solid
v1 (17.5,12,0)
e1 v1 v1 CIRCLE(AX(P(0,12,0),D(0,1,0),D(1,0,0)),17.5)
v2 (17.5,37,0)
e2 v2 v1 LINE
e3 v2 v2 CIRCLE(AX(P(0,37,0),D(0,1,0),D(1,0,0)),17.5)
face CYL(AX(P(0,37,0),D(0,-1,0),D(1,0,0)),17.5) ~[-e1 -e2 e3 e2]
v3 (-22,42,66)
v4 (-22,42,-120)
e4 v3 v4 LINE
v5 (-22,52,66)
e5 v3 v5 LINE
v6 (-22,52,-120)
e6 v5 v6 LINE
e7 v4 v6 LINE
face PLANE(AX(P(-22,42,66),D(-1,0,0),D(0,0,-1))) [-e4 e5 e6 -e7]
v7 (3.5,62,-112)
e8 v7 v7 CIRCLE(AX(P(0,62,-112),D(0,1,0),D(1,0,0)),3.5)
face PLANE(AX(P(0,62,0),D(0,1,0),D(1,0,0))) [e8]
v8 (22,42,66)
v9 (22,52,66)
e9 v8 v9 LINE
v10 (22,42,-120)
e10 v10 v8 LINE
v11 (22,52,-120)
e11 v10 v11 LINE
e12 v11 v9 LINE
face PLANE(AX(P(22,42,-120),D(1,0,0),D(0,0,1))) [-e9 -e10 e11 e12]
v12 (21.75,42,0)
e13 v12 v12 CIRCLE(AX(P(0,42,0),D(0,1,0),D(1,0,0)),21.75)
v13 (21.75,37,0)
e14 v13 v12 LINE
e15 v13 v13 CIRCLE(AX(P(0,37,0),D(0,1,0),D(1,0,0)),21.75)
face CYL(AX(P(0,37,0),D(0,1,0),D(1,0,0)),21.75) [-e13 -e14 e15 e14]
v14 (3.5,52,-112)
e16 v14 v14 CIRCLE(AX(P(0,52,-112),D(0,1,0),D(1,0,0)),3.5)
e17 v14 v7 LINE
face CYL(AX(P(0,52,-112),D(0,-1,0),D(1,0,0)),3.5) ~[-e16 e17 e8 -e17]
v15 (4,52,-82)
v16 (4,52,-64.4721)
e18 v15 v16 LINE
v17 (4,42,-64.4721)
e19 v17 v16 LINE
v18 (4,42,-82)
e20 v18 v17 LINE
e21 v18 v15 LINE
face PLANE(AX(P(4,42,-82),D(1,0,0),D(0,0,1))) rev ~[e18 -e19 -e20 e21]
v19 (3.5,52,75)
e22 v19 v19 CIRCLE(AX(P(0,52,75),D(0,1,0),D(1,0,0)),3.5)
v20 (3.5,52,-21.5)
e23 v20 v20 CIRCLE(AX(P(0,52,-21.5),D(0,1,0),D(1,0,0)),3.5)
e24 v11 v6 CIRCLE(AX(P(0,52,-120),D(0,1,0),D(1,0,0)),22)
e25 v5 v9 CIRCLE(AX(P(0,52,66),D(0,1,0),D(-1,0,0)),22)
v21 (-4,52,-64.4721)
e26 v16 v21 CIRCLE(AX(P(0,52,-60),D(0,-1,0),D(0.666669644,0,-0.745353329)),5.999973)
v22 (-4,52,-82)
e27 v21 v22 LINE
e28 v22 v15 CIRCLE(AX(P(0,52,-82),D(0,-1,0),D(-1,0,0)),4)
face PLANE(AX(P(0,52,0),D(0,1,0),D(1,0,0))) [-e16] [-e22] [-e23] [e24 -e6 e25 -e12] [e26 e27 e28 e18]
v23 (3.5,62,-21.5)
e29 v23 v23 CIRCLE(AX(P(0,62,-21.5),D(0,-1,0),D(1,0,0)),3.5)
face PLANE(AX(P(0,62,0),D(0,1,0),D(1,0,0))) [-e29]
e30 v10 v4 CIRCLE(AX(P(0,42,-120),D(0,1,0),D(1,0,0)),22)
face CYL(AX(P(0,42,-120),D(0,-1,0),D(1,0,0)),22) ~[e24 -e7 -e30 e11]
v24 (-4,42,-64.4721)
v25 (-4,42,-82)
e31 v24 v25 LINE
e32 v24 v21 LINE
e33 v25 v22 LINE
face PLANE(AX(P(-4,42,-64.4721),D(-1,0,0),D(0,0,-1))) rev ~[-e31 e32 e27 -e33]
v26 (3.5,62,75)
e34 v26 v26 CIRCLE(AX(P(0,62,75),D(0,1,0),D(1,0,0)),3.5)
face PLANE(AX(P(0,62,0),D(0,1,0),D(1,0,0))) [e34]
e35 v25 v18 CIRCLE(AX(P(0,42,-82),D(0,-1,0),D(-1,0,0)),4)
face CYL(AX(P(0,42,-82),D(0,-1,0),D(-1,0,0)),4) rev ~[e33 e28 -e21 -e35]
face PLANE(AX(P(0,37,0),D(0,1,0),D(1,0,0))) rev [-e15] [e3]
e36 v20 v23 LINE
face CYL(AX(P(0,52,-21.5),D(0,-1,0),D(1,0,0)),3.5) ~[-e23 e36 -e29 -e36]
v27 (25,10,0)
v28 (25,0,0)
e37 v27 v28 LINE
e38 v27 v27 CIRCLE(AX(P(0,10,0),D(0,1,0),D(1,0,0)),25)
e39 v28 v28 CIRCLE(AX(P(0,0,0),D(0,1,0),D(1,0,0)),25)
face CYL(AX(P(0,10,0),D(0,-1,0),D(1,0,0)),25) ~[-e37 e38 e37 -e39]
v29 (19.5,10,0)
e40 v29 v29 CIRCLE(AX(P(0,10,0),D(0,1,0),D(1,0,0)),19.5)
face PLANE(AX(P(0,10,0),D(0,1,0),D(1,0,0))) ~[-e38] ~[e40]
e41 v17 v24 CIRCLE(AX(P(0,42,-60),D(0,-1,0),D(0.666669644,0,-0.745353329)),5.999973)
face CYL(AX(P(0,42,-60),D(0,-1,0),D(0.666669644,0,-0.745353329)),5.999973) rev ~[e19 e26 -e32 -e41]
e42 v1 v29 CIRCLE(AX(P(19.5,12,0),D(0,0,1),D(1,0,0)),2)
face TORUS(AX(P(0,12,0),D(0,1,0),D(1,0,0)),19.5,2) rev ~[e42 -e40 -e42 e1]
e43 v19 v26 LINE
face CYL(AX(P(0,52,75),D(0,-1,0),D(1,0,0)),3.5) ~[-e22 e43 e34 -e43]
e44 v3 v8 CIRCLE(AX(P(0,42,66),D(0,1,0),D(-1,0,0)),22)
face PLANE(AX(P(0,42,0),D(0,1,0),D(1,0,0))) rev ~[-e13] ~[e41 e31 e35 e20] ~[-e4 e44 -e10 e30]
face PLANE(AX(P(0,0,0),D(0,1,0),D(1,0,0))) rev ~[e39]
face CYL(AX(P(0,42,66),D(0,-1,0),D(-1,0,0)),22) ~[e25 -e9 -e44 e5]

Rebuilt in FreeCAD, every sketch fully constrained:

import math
import FreeCAD as App
import Part
import Sketcher
from FreeCAD import Vector
Q = App.Units.Quantity


def edges_at(feature, points):
    """Names of the edges that pass closest to the given points."""
    edges = feature.Shape.Edges
    near = lambda p: min(range(len(edges)), key=lambda i: edges[i].distToShape(Part.Vertex(*p))[0])
    return sorted({f"Edge{near(p) + 1}" for p in points})

doc = App.newDocument("Part")
params = doc.addObject("Spreadsheet::Sheet", "Params")
for row, (alias, value) in enumerate([
    ("sketch1_height", "10 mm"),
    ("sketch1_height2", "5 mm"),
    ("sketch1_width", "25 mm"),
    ("sketch1_width2", "7.5 mm"),
    ("sketch1_width3", "4.25 mm"),
    ("revolution_angle", "360 deg"),
    ("sketch2_radius", "22 mm"),
    ("sketch2_height", "186 mm"),
    ("pad1_length", "10 mm"),
    ("fillet_radius", "2 mm"),
    ("sketch3_diameter", "7 mm"),
    ("pad2_length", "10 mm"),
    ("sketch4_radius", "6 mm"),
    ("sketch4_radius2", "4 mm"),
    ("pocket1_length", "10 mm"),
], start=1):
    params.set(f"A{row}", alias)
    params.set(f"B{row}", "=" + value)
    params.setAlias(f"B{row}", alias)

body = doc.addObject("PartDesign::Body", "Body")

sketch1 = doc.addObject("Sketcher::SketchObject", "Sketch")
body.addObject(sketch1)
sketch1.AttachmentSupport = (doc.XY_Plane, [""])
sketch1.MapMode = "FlatFace"
sketch1.addGeometry([
    Part.LineSegment(Vector(0, 42, 0), Vector(0, 0, 0)),
    Part.LineSegment(Vector(0, 0, 0), Vector(25, 0, 0)),
    Part.LineSegment(Vector(25, 0, 0), Vector(25, 10, 0)),
    Part.LineSegment(Vector(25, 10, 0), Vector(17.5, 10, 0)),
    Part.LineSegment(Vector(17.5, 10, 0), Vector(17.5, 37, 0)),
    Part.LineSegment(Vector(17.5, 37, 0), Vector(21.8, 37, 0)),
    Part.LineSegment(Vector(21.8, 37, 0), Vector(21.8, 42, 0)),
    Part.LineSegment(Vector(21.8, 42, 0), Vector(0, 42, 0)),
], False)
sketch1.addConstraint([
    Sketcher.Constraint("Coincident", 0, 2, 1, 1),
    Sketcher.Constraint("Coincident", 1, 2, 2, 1),
    Sketcher.Constraint("Coincident", 2, 2, 3, 1),
    Sketcher.Constraint("Coincident", 3, 2, 4, 1),
    Sketcher.Constraint("Coincident", 4, 2, 5, 1),
    Sketcher.Constraint("Coincident", 5, 2, 6, 1),
    Sketcher.Constraint("Coincident", 6, 2, 7, 1),
    Sketcher.Constraint("Coincident", 7, 2, 0, 1),
    Sketcher.Constraint("Vertical", 0),
    Sketcher.Constraint("Horizontal", 1),
    Sketcher.Constraint("Vertical", 2),
    Sketcher.Constraint("Horizontal", 3),
    Sketcher.Constraint("Vertical", 4),
    Sketcher.Constraint("Horizontal", 5),
    Sketcher.Constraint("Vertical", 6),
    Sketcher.Constraint("Horizontal", 7),
    Sketcher.Constraint("Coincident", 0, 2, -1, 1),
    Sketcher.Constraint("DistanceY", 2, 1, 2, 2, Q("10 mm")),
    Sketcher.Constraint("DistanceY", 6, 1, 6, 2, Q("5 mm")),
    Sketcher.Constraint("DistanceY", -1, 1, 4, 2, Q("37 mm")),
    Sketcher.Constraint("DistanceX", 1, 1, 1, 2, Q("25 mm")),
    Sketcher.Constraint("DistanceX", 3, 2, 3, 1, Q("7.5 mm")),
    Sketcher.Constraint("DistanceX", 5, 1, 5, 2, Q("4.25 mm")),
])
sketch1.setExpression("Constraints[17]", "Params.sketch1_height")
sketch1.setExpression("Constraints[18]", "Params.sketch1_height2")
sketch1.setExpression("Constraints[20]", "Params.sketch1_width")
sketch1.setExpression("Constraints[21]", "Params.sketch1_width2")
sketch1.setExpression("Constraints[22]", "Params.sketch1_width3")
revolution = doc.addObject("PartDesign::Revolution", "Revolution")
body.addObject(revolution)
revolution.Profile = sketch1
revolution.ReferenceAxis = (sketch1, ["V_Axis"])
revolution.setExpression("Angle", "Params.revolution_angle")

sketch2 = doc.addObject("Sketcher::SketchObject", "Sketch001")
body.addObject(sketch2)
sketch2.AttachmentSupport = (doc.XZ_Plane, [""])
sketch2.MapMode = "FlatFace"
sketch2.AttachmentOffset = App.Placement(Vector(0, 0, -42), App.Rotation())
sketch2.addGeometry([
    Part.LineSegment(Vector(-22, -120, 0), Vector(-22, 66, 0)),
    Part.ArcOfCircle(Part.Circle(Vector(0, 66, 0), Vector(0, 0, 1), 22), math.radians(0), math.radians(180)),
    Part.LineSegment(Vector(22, 66, 0), Vector(22, -120, 0)),
    Part.ArcOfCircle(Part.Circle(Vector(0, -120, 0), Vector(0, 0, 1), 22), math.radians(180), math.radians(360)),
], False)
sketch2.addConstraint([
    Sketcher.Constraint("Tangent", 0, 2, 1, 2),
    Sketcher.Constraint("Tangent", 1, 1, 2, 1),
    Sketcher.Constraint("Tangent", 2, 2, 3, 2),
    Sketcher.Constraint("Tangent", 3, 1, 0, 1),
    Sketcher.Constraint("Vertical", 0),
    Sketcher.Constraint("Vertical", 2),
    Sketcher.Constraint("PointOnObject", 1, 3, -2),
    Sketcher.Constraint("Radius", 1, Q("22 mm")),
    Sketcher.Constraint("DistanceY", 0, 1, 0, 2, Q("186 mm")),
    Sketcher.Constraint("DistanceY", -1, 1, 1, 3, Q("66 mm")),
])
sketch2.setExpression("Constraints[7]", "Params.sketch2_radius")
sketch2.setExpression("Constraints[8]", "Params.sketch2_height")
pad1 = doc.addObject("PartDesign::Pad", "Pad")
body.addObject(pad1)
pad1.Profile = sketch2
pad1.setExpression("Length", "Params.pad1_length")
pad1.Reversed = True
doc.recompute()

fillet = doc.addObject("PartDesign::Fillet", "Fillet")
body.addObject(fillet)
fillet.Base = (pad1, edges_at(pad1, [(-17.5, 10, 0)]))
fillet.setExpression("Radius", "Params.fillet_radius")

sketch3 = doc.addObject("Sketcher::SketchObject", "Sketch002")
body.addObject(sketch3)
sketch3.AttachmentSupport = (doc.XZ_Plane, [""])
sketch3.MapMode = "FlatFace"
sketch3.AttachmentOffset = App.Placement(Vector(0, 0, -52), App.Rotation())
sketch3.addGeometry([
    Part.Circle(Vector(0, 75, 0), Vector(0, 0, 1), 3.5),
    Part.Circle(Vector(0, -21.5, 0), Vector(0, 0, 1), 3.5),
    Part.Circle(Vector(0, -112, 0), Vector(0, 0, 1), 3.5),
], False)
sketch3.addConstraint([
    Sketcher.Constraint("Equal", 0, 1),
    Sketcher.Constraint("Equal", 1, 2),
    Sketcher.Constraint("PointOnObject", 0, 3, -2),
    Sketcher.Constraint("PointOnObject", 1, 3, -2),
    Sketcher.Constraint("PointOnObject", 2, 3, -2),
    Sketcher.Constraint("Diameter", 0, Q("7 mm")),
    Sketcher.Constraint("DistanceY", -1, 1, 0, 3, Q("75 mm")),
    Sketcher.Constraint("DistanceY", 1, 3, -1, 1, Q("21.5 mm")),
    Sketcher.Constraint("DistanceY", 2, 3, 1, 3, Q("90.5 mm")),
])
sketch3.setExpression("Constraints[5]", "Params.sketch3_diameter")
pad2 = doc.addObject("PartDesign::Pad", "Pad001")
body.addObject(pad2)
pad2.Profile = sketch3
pad2.setExpression("Length", "Params.pad2_length")
pad2.Reversed = True

sketch4 = doc.addObject("Sketcher::SketchObject", "Sketch003")
body.addObject(sketch4)
sketch4.AttachmentSupport = (doc.XZ_Plane, [""])
sketch4.MapMode = "FlatFace"
sketch4.AttachmentOffset = App.Placement(Vector(0, 0, -42), App.Rotation())
sketch4.addGeometry([
    Part.LineSegment(Vector(4, -82, 0), Vector(4, -64.5, 0)),
    Part.ArcOfCircle(Part.Circle(Vector(0, -60, 0), Vector(0, 0, 1), 6), math.radians(-48), math.radians(228)),
    Part.LineSegment(Vector(-4, -64.5, 0), Vector(-4, -82, 0)),
    Part.ArcOfCircle(Part.Circle(Vector(0, -82, 0), Vector(0, 0, 1), 4), math.radians(180), math.radians(360)),
], False)
sketch4.addConstraint([
    Sketcher.Constraint("Coincident", 0, 2, 1, 1),
    Sketcher.Constraint("Coincident", 1, 2, 2, 1),
    Sketcher.Constraint("Tangent", 2, 2, 3, 1),
    Sketcher.Constraint("Tangent", 3, 2, 0, 1),
    Sketcher.Constraint("Vertical", 0),
    Sketcher.Constraint("Vertical", 2),
    Sketcher.Constraint("Symmetric", 0, 2, 1, 2, -2),
    Sketcher.Constraint("Radius", 1, Q("6 mm")),
    Sketcher.Constraint("Radius", 3, Q("4 mm")),
    Sketcher.Constraint("DistanceY", 1, 3, -1, 1, Q("60 mm")),
    Sketcher.Constraint("DistanceY", 3, 3, 1, 3, Q("22 mm")),
])
sketch4.setExpression("Constraints[7]", "Params.sketch4_radius")
sketch4.setExpression("Constraints[8]", "Params.sketch4_radius2")
pocket1 = doc.addObject("PartDesign::Pocket", "Pocket")
body.addObject(pocket1)
pocket1.Profile = sketch4
pocket1.setExpression("Length", "Params.pocket1_length")

doc.recompute()
